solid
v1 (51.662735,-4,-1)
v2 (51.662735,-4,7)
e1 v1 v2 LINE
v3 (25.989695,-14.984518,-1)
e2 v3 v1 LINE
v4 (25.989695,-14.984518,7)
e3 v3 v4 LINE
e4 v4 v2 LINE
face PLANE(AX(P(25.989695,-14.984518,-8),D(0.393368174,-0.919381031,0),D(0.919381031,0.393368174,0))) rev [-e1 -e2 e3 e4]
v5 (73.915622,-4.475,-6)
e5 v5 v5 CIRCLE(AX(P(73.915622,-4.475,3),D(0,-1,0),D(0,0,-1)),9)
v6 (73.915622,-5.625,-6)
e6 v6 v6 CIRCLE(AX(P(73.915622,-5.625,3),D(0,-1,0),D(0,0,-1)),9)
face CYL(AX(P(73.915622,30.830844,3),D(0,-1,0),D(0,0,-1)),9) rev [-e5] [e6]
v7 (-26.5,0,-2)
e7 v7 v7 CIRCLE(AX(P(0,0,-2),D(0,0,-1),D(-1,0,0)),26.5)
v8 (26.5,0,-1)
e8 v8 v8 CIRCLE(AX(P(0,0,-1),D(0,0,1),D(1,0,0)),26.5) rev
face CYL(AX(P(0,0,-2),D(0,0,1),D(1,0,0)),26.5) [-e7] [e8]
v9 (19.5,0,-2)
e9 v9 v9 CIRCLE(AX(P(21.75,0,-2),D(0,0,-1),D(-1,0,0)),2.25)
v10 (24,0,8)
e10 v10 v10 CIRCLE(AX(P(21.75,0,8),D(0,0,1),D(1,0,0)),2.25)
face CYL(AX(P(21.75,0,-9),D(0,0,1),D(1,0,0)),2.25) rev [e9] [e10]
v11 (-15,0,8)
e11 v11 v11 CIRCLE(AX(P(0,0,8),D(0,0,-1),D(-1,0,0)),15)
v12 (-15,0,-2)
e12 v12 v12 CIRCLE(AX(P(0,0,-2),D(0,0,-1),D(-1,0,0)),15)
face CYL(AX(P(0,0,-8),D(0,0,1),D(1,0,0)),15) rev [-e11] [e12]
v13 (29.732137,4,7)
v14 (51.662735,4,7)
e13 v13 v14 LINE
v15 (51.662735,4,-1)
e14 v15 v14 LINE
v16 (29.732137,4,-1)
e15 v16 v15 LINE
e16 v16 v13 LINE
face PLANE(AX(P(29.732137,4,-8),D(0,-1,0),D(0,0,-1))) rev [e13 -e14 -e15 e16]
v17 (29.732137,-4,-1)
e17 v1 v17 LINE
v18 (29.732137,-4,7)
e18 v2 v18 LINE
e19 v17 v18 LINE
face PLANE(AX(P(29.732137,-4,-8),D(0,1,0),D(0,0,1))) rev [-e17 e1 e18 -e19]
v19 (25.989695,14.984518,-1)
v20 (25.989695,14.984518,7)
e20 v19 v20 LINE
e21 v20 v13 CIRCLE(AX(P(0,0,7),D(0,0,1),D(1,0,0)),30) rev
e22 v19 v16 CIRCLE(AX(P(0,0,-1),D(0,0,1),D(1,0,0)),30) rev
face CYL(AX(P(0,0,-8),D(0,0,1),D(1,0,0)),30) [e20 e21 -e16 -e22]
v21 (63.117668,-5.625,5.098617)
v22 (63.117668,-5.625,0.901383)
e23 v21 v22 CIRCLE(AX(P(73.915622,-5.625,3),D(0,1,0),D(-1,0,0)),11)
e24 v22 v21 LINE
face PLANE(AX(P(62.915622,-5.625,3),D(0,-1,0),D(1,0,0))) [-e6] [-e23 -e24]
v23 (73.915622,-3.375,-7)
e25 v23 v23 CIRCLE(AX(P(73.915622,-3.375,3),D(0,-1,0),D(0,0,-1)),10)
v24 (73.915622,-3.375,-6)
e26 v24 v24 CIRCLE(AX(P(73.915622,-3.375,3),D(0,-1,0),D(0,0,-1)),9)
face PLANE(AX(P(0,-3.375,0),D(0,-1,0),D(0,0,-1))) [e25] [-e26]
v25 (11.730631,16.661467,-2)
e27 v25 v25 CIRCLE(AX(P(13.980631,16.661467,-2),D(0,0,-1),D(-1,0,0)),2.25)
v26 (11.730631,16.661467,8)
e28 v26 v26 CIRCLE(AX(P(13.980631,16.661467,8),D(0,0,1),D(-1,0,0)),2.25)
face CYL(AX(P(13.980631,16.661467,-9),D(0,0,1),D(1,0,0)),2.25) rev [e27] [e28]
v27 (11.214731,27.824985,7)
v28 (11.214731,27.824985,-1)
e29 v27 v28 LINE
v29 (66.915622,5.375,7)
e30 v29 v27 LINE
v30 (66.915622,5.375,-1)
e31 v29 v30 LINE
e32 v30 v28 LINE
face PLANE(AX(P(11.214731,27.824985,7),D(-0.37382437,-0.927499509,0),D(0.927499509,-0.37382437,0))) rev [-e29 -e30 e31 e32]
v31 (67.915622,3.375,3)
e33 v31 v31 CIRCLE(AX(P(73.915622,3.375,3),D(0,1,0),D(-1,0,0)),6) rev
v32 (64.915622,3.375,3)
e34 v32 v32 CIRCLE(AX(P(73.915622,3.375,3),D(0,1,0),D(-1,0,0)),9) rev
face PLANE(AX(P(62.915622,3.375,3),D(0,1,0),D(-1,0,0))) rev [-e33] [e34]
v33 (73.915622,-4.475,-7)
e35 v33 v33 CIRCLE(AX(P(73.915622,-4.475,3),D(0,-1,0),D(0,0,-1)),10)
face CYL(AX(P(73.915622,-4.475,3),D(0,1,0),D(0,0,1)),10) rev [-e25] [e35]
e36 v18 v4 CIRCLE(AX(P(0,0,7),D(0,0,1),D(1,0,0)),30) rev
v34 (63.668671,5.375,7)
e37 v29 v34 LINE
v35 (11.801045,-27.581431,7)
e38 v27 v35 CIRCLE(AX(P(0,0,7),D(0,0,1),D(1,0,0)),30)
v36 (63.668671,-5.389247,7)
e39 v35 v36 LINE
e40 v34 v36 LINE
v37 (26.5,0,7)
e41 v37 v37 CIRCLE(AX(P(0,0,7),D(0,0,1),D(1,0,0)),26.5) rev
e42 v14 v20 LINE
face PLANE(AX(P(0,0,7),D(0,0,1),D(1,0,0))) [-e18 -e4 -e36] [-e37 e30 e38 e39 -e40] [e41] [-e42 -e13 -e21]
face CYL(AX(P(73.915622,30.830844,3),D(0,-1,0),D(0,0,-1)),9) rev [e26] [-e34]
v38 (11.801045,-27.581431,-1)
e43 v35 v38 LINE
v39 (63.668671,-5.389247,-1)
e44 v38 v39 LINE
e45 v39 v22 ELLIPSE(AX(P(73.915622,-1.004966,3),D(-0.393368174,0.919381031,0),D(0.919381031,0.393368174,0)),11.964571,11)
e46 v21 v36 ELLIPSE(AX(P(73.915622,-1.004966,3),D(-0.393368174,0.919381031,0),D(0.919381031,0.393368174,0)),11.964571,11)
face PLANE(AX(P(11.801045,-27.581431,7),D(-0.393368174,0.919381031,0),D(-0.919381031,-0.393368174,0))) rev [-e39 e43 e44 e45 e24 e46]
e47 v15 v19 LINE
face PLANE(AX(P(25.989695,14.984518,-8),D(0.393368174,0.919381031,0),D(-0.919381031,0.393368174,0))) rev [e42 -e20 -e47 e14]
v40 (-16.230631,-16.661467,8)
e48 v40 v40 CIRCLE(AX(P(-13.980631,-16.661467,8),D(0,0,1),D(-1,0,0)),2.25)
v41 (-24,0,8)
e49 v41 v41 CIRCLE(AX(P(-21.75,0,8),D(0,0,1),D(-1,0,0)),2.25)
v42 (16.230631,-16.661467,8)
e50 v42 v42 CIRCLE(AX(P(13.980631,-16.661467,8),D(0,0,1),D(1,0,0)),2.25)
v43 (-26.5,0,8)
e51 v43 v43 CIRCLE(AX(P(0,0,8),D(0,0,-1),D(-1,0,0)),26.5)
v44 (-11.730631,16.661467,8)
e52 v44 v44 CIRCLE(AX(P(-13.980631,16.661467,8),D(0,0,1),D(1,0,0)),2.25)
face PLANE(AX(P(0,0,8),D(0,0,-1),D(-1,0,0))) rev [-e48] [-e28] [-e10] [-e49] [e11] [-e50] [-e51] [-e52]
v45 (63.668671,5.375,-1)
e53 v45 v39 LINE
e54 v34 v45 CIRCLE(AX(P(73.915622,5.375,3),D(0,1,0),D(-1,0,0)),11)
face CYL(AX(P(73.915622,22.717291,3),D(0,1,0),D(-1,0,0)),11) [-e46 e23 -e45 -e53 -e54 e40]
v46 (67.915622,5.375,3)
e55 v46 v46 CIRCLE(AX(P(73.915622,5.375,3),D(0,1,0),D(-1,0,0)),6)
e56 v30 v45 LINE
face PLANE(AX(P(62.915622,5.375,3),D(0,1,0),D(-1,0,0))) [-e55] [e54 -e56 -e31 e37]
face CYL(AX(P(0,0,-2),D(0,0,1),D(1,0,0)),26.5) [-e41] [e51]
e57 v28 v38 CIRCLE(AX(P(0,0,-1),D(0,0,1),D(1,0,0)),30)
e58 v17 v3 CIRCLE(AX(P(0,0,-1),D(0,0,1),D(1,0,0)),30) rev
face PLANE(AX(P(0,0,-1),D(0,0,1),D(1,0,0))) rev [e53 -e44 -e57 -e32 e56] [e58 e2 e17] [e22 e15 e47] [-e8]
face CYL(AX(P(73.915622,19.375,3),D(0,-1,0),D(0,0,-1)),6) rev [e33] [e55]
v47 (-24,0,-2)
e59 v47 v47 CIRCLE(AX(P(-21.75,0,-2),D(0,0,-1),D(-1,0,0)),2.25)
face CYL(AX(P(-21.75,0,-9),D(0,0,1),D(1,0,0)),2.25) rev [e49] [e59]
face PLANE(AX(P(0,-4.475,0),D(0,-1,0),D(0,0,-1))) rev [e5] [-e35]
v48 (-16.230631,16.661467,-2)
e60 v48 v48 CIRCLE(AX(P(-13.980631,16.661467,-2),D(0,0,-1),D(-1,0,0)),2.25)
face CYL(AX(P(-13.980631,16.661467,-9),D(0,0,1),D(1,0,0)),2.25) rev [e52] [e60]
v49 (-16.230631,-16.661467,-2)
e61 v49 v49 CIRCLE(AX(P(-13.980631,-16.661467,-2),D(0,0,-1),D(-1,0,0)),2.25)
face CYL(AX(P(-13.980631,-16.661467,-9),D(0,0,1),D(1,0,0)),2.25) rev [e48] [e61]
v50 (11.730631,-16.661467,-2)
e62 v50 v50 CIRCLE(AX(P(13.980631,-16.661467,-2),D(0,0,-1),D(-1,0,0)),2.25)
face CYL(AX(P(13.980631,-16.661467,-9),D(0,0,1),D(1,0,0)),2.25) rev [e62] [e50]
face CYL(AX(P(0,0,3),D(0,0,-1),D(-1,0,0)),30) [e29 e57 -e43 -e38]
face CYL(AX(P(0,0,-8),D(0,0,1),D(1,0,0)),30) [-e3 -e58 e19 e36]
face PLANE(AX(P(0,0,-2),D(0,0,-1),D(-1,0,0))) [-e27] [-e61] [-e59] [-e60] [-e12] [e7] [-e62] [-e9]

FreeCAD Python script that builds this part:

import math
import FreeCAD as App
import Part
import Sketcher

V = App.Vector


def add_polygon(sketch, points):
    """Adds a closed chain of lines whose ends are joined by coincident constraints."""
    first, n = sketch.GeometryCount, len(points)
    for a, b in zip(points, points[1:] + points[:1]):
        sketch.addGeometry(Part.LineSegment(App.Vector(*a, 0), App.Vector(*b, 0)), False)
    for i in range(n):
        sketch.addConstraint(Sketcher.Constraint("Coincident", first + i, 2, first + (i + 1) % n, 1))

doc = App.newDocument("Part")
body = doc.addObject("PartDesign::Body", "Body")

sketch1 = body.newObject("Sketcher::SketchObject", "Sketch")
sketch1.AttachmentSupport = (doc.getObject("XY_Plane"), [""])
sketch1.MapMode = "FlatFace"
sketch1.addGeometry(Part.Circle(V(0, 0, 0), V(0, 0, 1), 30), False)
sketch1.addConstraint(Sketcher.Constraint("Coincident", 0, 3, -1, 1))
sketch1.addConstraint(Sketcher.Constraint("Diameter", 0, 60.0))
pad1 = body.newObject("PartDesign::Pad", "Pad")
pad1.Profile = sketch1
pad1.Length = 3
body2 = doc.addObject("PartDesign::Body", "Body001")

sketch2 = body2.newObject("Sketcher::SketchObject", "Sketch001")
sketch2.AttachmentSupport = (doc.getObject("XY_Plane001"), [""])
sketch2.MapMode = "FlatFace"
sketch2.AttachmentOffset = App.Placement(V(0, 0, 3), App.Rotation())
add_polygon(sketch2, [(63, 5), (63, -6), (74, -6), (74, 5)])
sketch2.addGeometry(Part.LineSegment(V(74, 5, 0), V(74, -6, 0)), True)
sketch2.addConstraint(Sketcher.Constraint("Vertical", 0))
sketch2.addConstraint(Sketcher.Constraint("Horizontal", 1))
sketch2.addConstraint(Sketcher.Constraint("Vertical", 2))
sketch2.addConstraint(Sketcher.Constraint("Horizontal", 3))
sketch2.addConstraint(Sketcher.Constraint("Vertical", 4))
sketch2.addConstraint(Sketcher.Constraint("Coincident", 4, 1, 2, 2))
sketch2.addConstraint(Sketcher.Constraint("Horizontal", 0, 2, 4, 2))
sketch2.addConstraint(Sketcher.Constraint("Equal", 3, 0))
sketch2.addConstraint(Sketcher.Constraint("DistanceX", 1, 1, 1, 2, 11.0))
sketch2.addConstraint(Sketcher.Constraint("DistanceY", 0, 2, -1, 1, 5.625))
sketch2.addConstraint(Sketcher.Constraint("DistanceX", -1, 1, 0, 2, 62.915622))
revolution = body2.newObject("PartDesign::Revolution", "Revolution")
revolution.Profile = sketch2
revolution.ReferenceAxis = (sketch2, ["Axis0"])
revolution.Angle = 360
body.AllowCompound = True
doc.recompute()

boolean = body.newObject("PartDesign::Boolean", "Boolean")
boolean.Type = "Fuse"
boolean.addObjects([body2])

sketch3 = body.newObject("Sketcher::SketchObject", "Sketch002")
sketch3.AttachmentSupport = (doc.getObject("XY_Plane"), [""])
sketch3.MapMode = "FlatFace"
sketch3.AttachmentOffset = App.Placement(V(0, 0, 3), App.Rotation())
sketch3.addGeometry(Part.LineSegment(V(67, 5, 0), V(11, 28, 0)), False)
sketch3.addGeometry(Part.ArcOfCircle(Part.Circle(V(0, 0, 0), V(0, 0, 1), 30), math.radians(68), math.radians(293)), False)
sketch3.addGeometry(Part.LineSegment(V(12, -28, 0), V(67, -4, 0)), False)
sketch3.addGeometry(Part.LineSegment(V(67, -4, 0), V(67, 5, 0)), False)
sketch3.addConstraint(Sketcher.Constraint("Tangent", 0, 2, 1, 1))
sketch3.addConstraint(Sketcher.Constraint("Tangent", 1, 2, 2, 1))
sketch3.addConstraint(Sketcher.Constraint("Coincident", 2, 2, 3, 1))
sketch3.addConstraint(Sketcher.Constraint("Coincident", 3, 2, 0, 1))
sketch3.addConstraint(Sketcher.Constraint("Vertical", 3))
sketch3.addConstraint(Sketcher.Constraint("Coincident", 1, 3, -1, 1))
sketch3.addConstraint(Sketcher.Constraint("Radius", 1, 30.0))
sketch3.addConstraint(Sketcher.Constraint("DistanceY", 2, 2, -1, 1, 4.0))
sketch3.addConstraint(Sketcher.Constraint("DistanceY", 3, 1, 3, 2, 9.375))
sketch3.addConstraint(Sketcher.Constraint("Distance", 0, 60.0549))
pad2 = body.newObject("PartDesign::Pad", "Pad001")
pad2.Profile = sketch3
pad2.Length = 8
pad2.Midplane = True

sketch4 = body.newObject("Sketcher::SketchObject", "Sketch003")
sketch4.AttachmentSupport = (doc.getObject("XZ_Plane"), [""])
sketch4.MapMode = "FlatFace"
sketch4.AttachmentOffset = App.Placement(V(0, 0, 5.625), App.Rotation())
sketch4.addGeometry(Part.Circle(V(74, 3, 0), V(0, 0, 1), 6), False)
sketch4.addConstraint(Sketcher.Constraint("Diameter", 0, 12.0))
sketch4.addConstraint(Sketcher.Constraint("DistanceY", -1, 1, 0, 3, 3.0))
sketch4.addConstraint(Sketcher.Constraint("DistanceX", -1, 1, 0, 3, 73.915622))
pocket1 = body.newObject("PartDesign::Pocket", "Pocket")
pocket1.Profile = sketch4
pocket1.Length = 25

sketch5 = body.newObject("Sketcher::SketchObject", "Sketch004")
sketch5.AttachmentSupport = (doc.getObject("XZ_Plane"), [""])
sketch5.MapMode = "FlatFace"
sketch5.AttachmentOffset = App.Placement(V(0, 0, 5.625), App.Rotation())
sketch5.addGeometry(Part.Circle(V(74, 3, 0), V(0, 0, 1), 9), False)
sketch5.addConstraint(Sketcher.Constraint("Diameter", 0, 18.0))
sketch5.addConstraint(Sketcher.Constraint("DistanceY", -1, 1, 0, 3, 3.0))
sketch5.addConstraint(Sketcher.Constraint("DistanceX", -1, 1, 0, 3, 73.915622))
pocket2 = body.newObject("PartDesign::Pocket", "Pocket001")
pocket2.Profile = sketch5
pocket2.Length = 9

sketch6 = body.newObject("Sketcher::SketchObject", "Sketch005")
sketch6.AttachmentSupport = (doc.getObject("XZ_Plane"), [""])
sketch6.MapMode = "FlatFace"
sketch6.AttachmentOffset = App.Placement(V(0, 0, 4.475), App.Rotation())
sketch6.addGeometry(Part.Circle(V(74, 3, 0), V(0, 0, 1), 10), False)
sketch6.addConstraint(Sketcher.Constraint("Diameter", 0, 20.0))
sketch6.addConstraint(Sketcher.Constraint("DistanceY", -1, 1, 0, 3, 3.0))
sketch6.addConstraint(Sketcher.Constraint("DistanceX", -1, 1, 0, 3, 73.915622))
pocket3 = body.newObject("PartDesign::Pocket", "Pocket002")
pocket3.Profile = sketch6
pocket3.Length = 1.1

sketch7 = body.newObject("Sketcher::SketchObject", "Sketch006")
sketch7.AttachmentSupport = (doc.getObject("XY_Plane"), [""])
sketch7.MapMode = "FlatFace"
sketch7.AttachmentOffset = App.Placement(V(0, 0, 3), App.Rotation())
sketch7.addGeometry(Part.Circle(V(0, 0, 0), V(0, 0, 1), 26), False)
sketch7.addConstraint(Sketcher.Constraint("Coincident", 0, 3, -1, 1))
sketch7.addConstraint(Sketcher.Constraint("Diameter", 0, 53.0))
pad3 = body.newObject("PartDesign::Pad", "Pad002")
pad3.Profile = sketch7
pad3.Length = 10
pad3.Midplane = True

sketch8 = body.newObject("Sketcher::SketchObject", "Sketch007")
sketch8.AttachmentSupport = (doc.getObject("XY_Plane"), [""])
sketch8.MapMode = "FlatFace"
sketch8.AttachmentOffset = App.Placement(V(0, 0, 7), App.Rotation())
sketch8.addGeometry(Part.Circle(V(0, 0, 0), V(0, 0, 1), 15), False)
sketch8.addGeometry(Part.LineSegment(V(26, -15, 0), V(52, -4, 0)), False)
sketch8.addGeometry(Part.LineSegment(V(52, -4, 0), V(30, -4, 0)), False)
sketch8.addGeometry(Part.ArcOfCircle(Part.Circle(V(0, 0, 0), V(0, 0, 1), 30), math.radians(-30), math.radians(-8)), False)
sketch8.addGeometry(Part.LineSegment(V(30, 4, 0), V(52, 4, 0)), False)
sketch8.addGeometry(Part.LineSegment(V(52, 4, 0), V(26, 15, 0)), False)
sketch8.addGeometry(Part.ArcOfCircle(Part.Circle(V(0, 0, 0), V(0, 0, 1), 30), math.radians(8), math.radians(30)), False)
sketch8.addConstraint(Sketcher.Constraint("Coincident", 1, 2, 2, 1))
sketch8.addConstraint(Sketcher.Constraint("Coincident", 2, 2, 3, 2))
sketch8.addConstraint(Sketcher.Constraint("Coincident", 3, 1, 1, 1))
sketch8.addConstraint(Sketcher.Constraint("Coincident", 4, 2, 5, 1))
sketch8.addConstraint(Sketcher.Constraint("Coincident", 5, 2, 6, 2))
sketch8.addConstraint(Sketcher.Constraint("Coincident", 6, 1, 4, 1))
sketch8.addConstraint(Sketcher.Constraint("Horizontal", 2))
sketch8.addConstraint(Sketcher.Constraint("Horizontal", 4))
sketch8.addConstraint(Sketcher.Constraint("Coincident", 0, 3, -1, 1))
sketch8.addConstraint(Sketcher.Constraint("Coincident", 3, 3, -1, 1))
sketch8.addConstraint(Sketcher.Constraint("Coincident", 6, 3, -1, 1))
sketch8.addConstraint(Sketcher.Constraint("Equal", 3, 6))
sketch8.addConstraint(Sketcher.Constraint("Symmetric", 1, 2, 4, 2, -1))
sketch8.addConstraint(Sketcher.Constraint("Vertical", 3, 1, 5, 2))
sketch8.addConstraint(Sketcher.Constraint("Diameter", 0, 30.0))
sketch8.addConstraint(Sketcher.Constraint("Radius", 3, 30.0))
sketch8.addConstraint(Sketcher.Constraint("DistanceY", 1, 2, -1, 1, 4.0))
sketch8.addConstraint(Sketcher.Constraint("DistanceX", 2, 2, 2, 1, 21.930598))
sketch8.addConstraint(Sketcher.Constraint("DistanceX", 3, 1, 1, 2, 25.673041))
pocket4 = body.newObject("PartDesign::Pocket", "Pocket003")
pocket4.Profile = sketch8
pocket4.Type = "ThroughAll"
pocket4.Midplane = True

sketch9 = body.newObject("Sketcher::SketchObject", "Sketch008")
sketch9.AttachmentSupport = (doc.getObject("XY_Plane"), [""])
sketch9.MapMode = "FlatFace"
sketch9.AttachmentOffset = App.Placement(V(0, 0, 8), App.Rotation())
sketch9.addGeometry(Part.Circle(V(21.8, 0, 0), V(0, 0, 1), 2.2), False)
sketch9.addGeometry(Part.Circle(V(14, -16.7, 0), V(0, 0, 1), 2.2), False)
sketch9.addGeometry(Part.Circle(V(-21.8, 0, 0), V(0, 0, 1), 2.2), False)
sketch9.addGeometry(Part.Circle(V(-14, -16.7, 0), V(0, 0, 1), 2.2), False)
sketch9.addGeometry(Part.Circle(V(14, 16.7, 0), V(0, 0, 1), 2.2), False)
sketch9.addGeometry(Part.Circle(V(-14, 16.7, 0), V(0, 0, 1), 2.2), False)
sketch9.addConstraint(Sketcher.Constraint("Equal", 0, 1))
sketch9.addConstraint(Sketcher.Constraint("Equal", 1, 2))
sketch9.addConstraint(Sketcher.Constraint("Equal", 2, 3))
sketch9.addConstraint(Sketcher.Constraint("Equal", 3, 4))
sketch9.addConstraint(Sketcher.Constraint("Equal", 4, 5))
sketch9.addConstraint(Sketcher.Constraint("Symmetric", 0, 3, 2, 3, -1, 1))
sketch9.addConstraint(Sketcher.Constraint("Symmetric", 3, 3, 4, 3, -1, 1))
sketch9.addConstraint(Sketcher.Constraint("Symmetric", 1, 3, 5, 3, -1, 1))
sketch9.addConstraint(Sketcher.Constraint("Symmetric", 1, 3, 3, 3, -2))
sketch9.addConstraint(Sketcher.Constraint("PointOnObject", 0, 3, -1))
sketch9.addConstraint(Sketcher.Constraint("Diameter", 0, 4.5))
sketch9.addConstraint(Sketcher.Constraint("DistanceX", 2, 3, 0, 3, 43.5))
sketch9.addConstraint(Sketcher.Constraint("DistanceX", -1, 1, 1, 3, 13.980631))
sketch9.addConstraint(Sketcher.Constraint("DistanceY", 1, 3, -1, 1, 16.661467))
pocket5 = body.newObject("PartDesign::Pocket", "Pocket004")
pocket5.Profile = sketch9
pocket5.Length = 17

doc.recompute()
